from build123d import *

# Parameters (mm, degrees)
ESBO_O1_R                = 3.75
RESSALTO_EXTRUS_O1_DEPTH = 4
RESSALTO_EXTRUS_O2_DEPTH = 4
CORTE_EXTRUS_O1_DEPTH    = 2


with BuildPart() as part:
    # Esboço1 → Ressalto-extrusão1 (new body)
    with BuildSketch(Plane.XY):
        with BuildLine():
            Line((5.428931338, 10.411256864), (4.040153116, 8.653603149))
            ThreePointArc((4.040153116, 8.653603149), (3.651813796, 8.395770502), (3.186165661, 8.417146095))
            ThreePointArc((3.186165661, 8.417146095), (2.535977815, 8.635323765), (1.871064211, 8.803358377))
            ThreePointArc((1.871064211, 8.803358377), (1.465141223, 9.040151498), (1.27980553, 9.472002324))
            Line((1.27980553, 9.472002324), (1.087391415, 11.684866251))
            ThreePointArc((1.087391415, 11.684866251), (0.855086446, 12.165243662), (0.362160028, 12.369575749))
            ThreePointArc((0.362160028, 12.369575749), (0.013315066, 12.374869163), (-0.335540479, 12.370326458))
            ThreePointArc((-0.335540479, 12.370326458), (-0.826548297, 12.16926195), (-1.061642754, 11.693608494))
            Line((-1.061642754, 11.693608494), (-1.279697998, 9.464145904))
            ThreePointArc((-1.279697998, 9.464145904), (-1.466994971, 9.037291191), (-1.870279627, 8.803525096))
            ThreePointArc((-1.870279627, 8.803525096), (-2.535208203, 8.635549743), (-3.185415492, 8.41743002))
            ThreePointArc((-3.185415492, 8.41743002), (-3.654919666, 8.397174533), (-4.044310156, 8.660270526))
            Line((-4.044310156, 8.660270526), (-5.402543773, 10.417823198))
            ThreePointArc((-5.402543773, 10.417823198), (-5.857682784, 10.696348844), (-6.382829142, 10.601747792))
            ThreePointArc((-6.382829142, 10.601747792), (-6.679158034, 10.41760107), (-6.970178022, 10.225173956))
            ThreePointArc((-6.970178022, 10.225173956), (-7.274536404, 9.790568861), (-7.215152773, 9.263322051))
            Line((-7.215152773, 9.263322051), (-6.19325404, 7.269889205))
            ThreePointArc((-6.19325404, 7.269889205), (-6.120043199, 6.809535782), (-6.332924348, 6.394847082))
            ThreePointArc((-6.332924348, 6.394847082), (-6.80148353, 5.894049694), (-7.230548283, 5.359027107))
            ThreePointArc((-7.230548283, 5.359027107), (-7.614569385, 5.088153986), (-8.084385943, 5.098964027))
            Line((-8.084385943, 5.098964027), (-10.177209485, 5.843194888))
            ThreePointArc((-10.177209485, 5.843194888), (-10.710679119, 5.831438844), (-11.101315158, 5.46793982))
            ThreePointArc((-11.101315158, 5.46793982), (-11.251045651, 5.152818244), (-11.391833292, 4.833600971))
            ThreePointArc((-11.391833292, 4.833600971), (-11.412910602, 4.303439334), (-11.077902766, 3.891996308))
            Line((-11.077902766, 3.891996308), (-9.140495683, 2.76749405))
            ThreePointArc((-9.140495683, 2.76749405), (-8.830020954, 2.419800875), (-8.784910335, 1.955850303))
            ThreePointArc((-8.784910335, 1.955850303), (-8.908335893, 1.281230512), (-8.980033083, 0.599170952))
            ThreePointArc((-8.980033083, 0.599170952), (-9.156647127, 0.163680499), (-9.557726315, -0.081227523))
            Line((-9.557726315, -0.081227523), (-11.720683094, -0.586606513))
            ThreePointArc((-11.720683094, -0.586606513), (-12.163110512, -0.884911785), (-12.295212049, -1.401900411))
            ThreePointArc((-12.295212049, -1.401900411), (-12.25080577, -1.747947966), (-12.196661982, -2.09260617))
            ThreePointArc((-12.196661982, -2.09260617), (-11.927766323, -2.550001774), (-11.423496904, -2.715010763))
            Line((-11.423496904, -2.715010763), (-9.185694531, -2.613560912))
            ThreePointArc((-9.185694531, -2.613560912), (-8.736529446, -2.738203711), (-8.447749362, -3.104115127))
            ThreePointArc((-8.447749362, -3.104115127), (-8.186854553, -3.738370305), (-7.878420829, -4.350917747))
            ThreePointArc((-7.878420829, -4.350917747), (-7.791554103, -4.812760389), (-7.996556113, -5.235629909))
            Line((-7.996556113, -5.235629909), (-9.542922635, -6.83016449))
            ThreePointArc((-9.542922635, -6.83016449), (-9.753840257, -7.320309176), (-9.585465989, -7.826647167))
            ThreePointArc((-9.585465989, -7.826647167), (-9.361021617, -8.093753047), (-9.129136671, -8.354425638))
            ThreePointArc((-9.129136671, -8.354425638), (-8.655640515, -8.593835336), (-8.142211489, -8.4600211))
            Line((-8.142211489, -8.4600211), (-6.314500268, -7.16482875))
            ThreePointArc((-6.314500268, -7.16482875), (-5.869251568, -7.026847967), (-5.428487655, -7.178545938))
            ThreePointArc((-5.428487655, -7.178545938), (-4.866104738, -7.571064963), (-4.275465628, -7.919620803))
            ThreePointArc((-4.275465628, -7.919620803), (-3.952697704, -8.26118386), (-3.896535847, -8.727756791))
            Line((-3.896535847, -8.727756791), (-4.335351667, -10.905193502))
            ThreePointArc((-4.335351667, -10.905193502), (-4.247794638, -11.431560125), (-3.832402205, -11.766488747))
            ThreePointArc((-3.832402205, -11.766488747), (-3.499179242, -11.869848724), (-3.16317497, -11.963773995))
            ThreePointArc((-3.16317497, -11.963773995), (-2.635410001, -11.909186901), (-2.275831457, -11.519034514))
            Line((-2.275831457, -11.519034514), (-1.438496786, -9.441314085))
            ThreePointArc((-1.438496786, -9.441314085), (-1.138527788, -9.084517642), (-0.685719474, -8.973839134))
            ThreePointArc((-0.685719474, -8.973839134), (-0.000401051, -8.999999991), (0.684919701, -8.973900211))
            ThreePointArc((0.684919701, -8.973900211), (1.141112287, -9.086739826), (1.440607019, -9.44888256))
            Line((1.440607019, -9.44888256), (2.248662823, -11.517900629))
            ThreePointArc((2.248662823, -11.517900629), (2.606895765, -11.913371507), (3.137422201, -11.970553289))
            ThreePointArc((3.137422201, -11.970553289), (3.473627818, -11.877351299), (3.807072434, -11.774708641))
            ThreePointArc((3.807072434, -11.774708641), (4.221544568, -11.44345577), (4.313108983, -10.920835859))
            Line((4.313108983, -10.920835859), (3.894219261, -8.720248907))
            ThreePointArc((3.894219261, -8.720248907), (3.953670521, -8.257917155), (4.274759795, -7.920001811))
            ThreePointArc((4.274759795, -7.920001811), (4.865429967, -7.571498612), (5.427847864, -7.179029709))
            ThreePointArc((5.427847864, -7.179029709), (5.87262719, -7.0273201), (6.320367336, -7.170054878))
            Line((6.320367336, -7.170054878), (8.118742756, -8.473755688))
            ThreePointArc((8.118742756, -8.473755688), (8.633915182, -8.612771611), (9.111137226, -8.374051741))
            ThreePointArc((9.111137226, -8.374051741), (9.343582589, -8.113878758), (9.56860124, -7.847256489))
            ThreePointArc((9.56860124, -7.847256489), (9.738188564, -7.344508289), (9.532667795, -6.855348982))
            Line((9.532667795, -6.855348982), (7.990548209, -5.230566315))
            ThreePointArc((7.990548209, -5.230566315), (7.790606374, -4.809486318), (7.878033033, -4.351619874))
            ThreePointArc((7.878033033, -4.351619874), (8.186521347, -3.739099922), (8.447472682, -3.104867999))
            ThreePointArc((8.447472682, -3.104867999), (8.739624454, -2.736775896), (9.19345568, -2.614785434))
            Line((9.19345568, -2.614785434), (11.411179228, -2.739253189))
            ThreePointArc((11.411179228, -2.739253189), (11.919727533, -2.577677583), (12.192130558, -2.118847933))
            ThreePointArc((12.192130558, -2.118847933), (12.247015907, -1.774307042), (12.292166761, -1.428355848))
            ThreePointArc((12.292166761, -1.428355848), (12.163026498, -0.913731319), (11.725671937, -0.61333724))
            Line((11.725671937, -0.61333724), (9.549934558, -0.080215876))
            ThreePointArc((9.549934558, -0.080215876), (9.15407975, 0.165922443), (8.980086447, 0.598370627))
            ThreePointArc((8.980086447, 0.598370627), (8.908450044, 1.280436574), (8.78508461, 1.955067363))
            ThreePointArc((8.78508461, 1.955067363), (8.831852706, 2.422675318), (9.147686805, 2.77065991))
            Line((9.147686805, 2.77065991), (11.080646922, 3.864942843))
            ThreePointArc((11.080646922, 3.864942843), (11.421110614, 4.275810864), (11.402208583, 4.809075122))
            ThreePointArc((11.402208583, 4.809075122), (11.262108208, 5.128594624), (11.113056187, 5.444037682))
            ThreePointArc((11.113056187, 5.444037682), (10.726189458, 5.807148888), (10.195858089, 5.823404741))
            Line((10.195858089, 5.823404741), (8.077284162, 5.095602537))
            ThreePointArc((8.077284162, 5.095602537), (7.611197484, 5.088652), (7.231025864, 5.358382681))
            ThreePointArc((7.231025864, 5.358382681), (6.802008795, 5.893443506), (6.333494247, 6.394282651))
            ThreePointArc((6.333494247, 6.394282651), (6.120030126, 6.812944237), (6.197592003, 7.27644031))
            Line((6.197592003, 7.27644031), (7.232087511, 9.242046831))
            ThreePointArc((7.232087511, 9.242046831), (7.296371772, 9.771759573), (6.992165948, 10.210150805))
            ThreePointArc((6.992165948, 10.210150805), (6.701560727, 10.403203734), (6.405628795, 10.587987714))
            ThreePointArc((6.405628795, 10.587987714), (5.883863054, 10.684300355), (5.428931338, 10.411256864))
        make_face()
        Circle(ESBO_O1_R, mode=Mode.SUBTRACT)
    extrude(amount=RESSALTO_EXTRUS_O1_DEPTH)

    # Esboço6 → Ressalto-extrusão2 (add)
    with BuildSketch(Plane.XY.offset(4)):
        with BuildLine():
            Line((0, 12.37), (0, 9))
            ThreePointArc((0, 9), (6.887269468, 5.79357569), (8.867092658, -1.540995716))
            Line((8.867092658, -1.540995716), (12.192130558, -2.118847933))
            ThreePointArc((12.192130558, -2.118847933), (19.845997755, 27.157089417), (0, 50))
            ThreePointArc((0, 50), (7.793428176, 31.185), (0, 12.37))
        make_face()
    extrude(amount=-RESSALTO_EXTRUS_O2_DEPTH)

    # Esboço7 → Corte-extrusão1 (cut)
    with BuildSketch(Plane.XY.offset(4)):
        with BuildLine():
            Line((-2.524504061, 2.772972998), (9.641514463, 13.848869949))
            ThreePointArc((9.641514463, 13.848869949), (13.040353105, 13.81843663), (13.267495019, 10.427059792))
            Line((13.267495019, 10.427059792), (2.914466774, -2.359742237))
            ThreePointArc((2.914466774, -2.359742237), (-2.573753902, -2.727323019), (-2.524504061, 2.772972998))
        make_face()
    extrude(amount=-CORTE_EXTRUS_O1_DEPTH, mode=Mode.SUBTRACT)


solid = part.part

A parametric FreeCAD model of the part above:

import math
import FreeCAD as App
import Part
import Sketcher

doc = App.newDocument("Part")
body = doc.addObject("PartDesign::Body", "Body")

sketch1 = doc.addObject("Sketcher::SketchObject", "Sketch")
body.addObject(sketch1)
sketch1.AttachmentSupport = (doc.XY_Plane, [""])
sketch1.MapMode = "FlatFace"
sketch1.addGeometry([
    Part.LineSegment(App.Vector(5.428931, 10.411257, 0), App.Vector(4.040153, 8.653603, 0)),
    Part.ArcOfCircle(Part.Circle(App.Vector(3.451679, 9.118575, 0), App.Vector(0, 0, 1), 0.75), math.radians(-110.733297), math.radians(-38.313387)),
    Part.ArcOfCircle(Part.Circle(App.Vector(0, 0, 0), App.Vector(0, 0, 1), 9), math.radians(69.266703), math.radians(78.000918)),
    Part.ArcOfCircle(Part.Circle(App.Vector(2.026986, 9.536972, 0), App.Vector(0, 0, 1), 0.75), math.radians(-175.030486), math.radians(-101.999082)),
    Part.LineSegment(App.Vector(1.279806, 9.472002, 0), App.Vector(1.087391, 11.684866, 0)),
    Part.ArcOfCircle(Part.Circle(App.Vector(0.340211, 11.619897, 0), App.Vector(0, 0, 1), 0.75), math.radians(4.969514), math.radians(88.322957)),
    Part.ArcOfCircle(Part.Circle(App.Vector(0, 0, 0), App.Vector(0, 0, 1), 12.374876), math.radians(88.322957), math.radians(91.553746)),
    Part.ArcOfCircle(Part.Circle(App.Vector(-0.315204, 11.620602, 0), App.Vector(0, 0, 1), 0.75), math.radians(91.553746), math.radians(174.413885)),
    Part.LineSegment(App.Vector(-1.061643, 11.693608, 0), App.Vector(-1.279698, 9.464146, 0)),
    Part.ArcOfCircle(Part.Circle(App.Vector(-2.026136, 9.537152, 0), App.Vector(0, 0, 1), 0.75), math.radians(-78.006024), math.radians(-5.586115)),
    Part.ArcOfCircle(Part.Circle(App.Vector(0, 0, 0), App.Vector(0, 0, 1), 9), math.radians(101.993976), math.radians(110.72819)),
    Part.ArcOfCircle(Part.Circle(App.Vector(-3.450867, 9.118883, 0), App.Vector(0, 0, 1), 0.75), math.radians(-142.303214), math.radians(-69.27181)),
    Part.LineSegment(App.Vector(-4.04431, 8.660271, 0), App.Vector(-5.402544, 10.417823, 0)),
    Part.ArcOfCircle(Part.Circle(App.Vector(-5.995987, 9.959211, 0), App.Vector(0, 0, 1), 0.75), math.radians(37.696786), math.radians(121.050229)),
    Part.ArcOfCircle(Part.Circle(App.Vector(0, 0, 0), App.Vector(0, 0, 1), 12.374876), math.radians(121.050229), math.radians(124.281018)),
    Part.ArcOfCircle(Part.Circle(App.Vector(-6.547739, 9.60546, 0), App.Vector(0, 0, 1), 0.75), math.radians(124.281018), math.radians(207.141158)),
    Part.LineSegment(App.Vector(-7.215153, 9.263322, 0), App.Vector(-6.193254, 7.269889, 0)),
    Part.ArcOfCircle(Part.Circle(App.Vector(-6.860668, 6.927751, 0), App.Vector(0, 0, 1), 0.75), math.radians(-45.278751), math.radians(27.141158)),
    Part.ArcOfCircle(Part.Circle(App.Vector(0, 0, 0), App.Vector(0, 0, 1), 9), math.radians(134.721249), math.radians(143.455463)),
    Part.ArcOfCircle(Part.Circle(App.Vector(-7.833094, 5.805613, 0), App.Vector(0, 0, 1), 0.75), math.radians(-109.575941), math.radians(-36.544537)),
    Part.LineSegment(App.Vector(-8.084386, 5.098964, 0), App.Vector(-10.177209, 5.843195, 0)),
    Part.ArcOfCircle(Part.Circle(App.Vector(-10.428501, 5.136546, 0), App.Vector(0, 0, 1), 0.75), math.radians(70.424059), math.radians(153.777502)),
    Part.ArcOfCircle(Part.Circle(App.Vector(0.000001, 0, 0), App.Vector(0, 0, 1), 12.374877), math.radians(153.777502), math.radians(157.008291)),
    Part.ArcOfCircle(Part.Circle(App.Vector(-10.701412, 4.540653, 0), App.Vector(0, 0, 1), 0.75), math.radians(157.008291), math.radians(239.868431)),
    Part.LineSegment(App.Vector(-11.077903, 3.891996, 0), App.Vector(-9.140496, 2.767494, 0)),
    Part.ArcOfCircle(Part.Circle(App.Vector(-9.516986, 2.118838, 0), App.Vector(0, 0, 1), 0.75), math.radians(-12.551479), math.radians(59.86843)),
    Part.ArcOfCircle(Part.Circle(App.Vector(0, 0, 0), App.Vector(0, 0, 1), 9), math.radians(167.448521), math.radians(176.182736)),
    Part.ArcOfCircle(Part.Circle(App.Vector(-9.728369, 0.649102, 0), App.Vector(0, 0, 1), 0.75), math.radians(-76.848668), math.radians(-3.817264)),
    Part.LineSegment(App.Vector(-9.557726, -0.081228, 0), App.Vector(-11.720683, -0.586607, 0)),
    Part.ArcOfCircle(Part.Circle(App.Vector(-11.55004, -1.316936, 0), App.Vector(0, 0, 1), 0.75), math.radians(103.151332), math.radians(186.504775)),
    Part.ArcOfCircle(Part.Circle(App.Vector(-0.000002, 0, 0), App.Vector(0, 0, 1), 12.374875), math.radians(-173.495225), math.radians(-170.264436)),
    Part.ArcOfCircle(Part.Circle(App.Vector(-11.457463, -1.96578, 0), App.Vector(0, 0, 1), 0.75), math.radians(-170.264436), math.radians(-87.404297)),
    Part.LineSegment(App.Vector(-11.423497, -2.715011, 0), App.Vector(-9.185695, -2.613561, 0)),
    Part.ArcOfCircle(Part.Circle(App.Vector(-9.151728, -3.362791, 0), App.Vector(0, 0, 1), 0.75), math.radians(20.175794), math.radians(92.595703)),
    Part.ArcOfCircle(Part.Circle(App.Vector(0, 0, 0), App.Vector(0, 0, 1), 9), math.radians(-159.824206), math.radians(-151.089991)),
    Part.ArcOfCircle(Part.Circle(App.Vector(-8.534956, -4.713494, 0), App.Vector(0, 0, 1), 0.75), math.radians(-44.121395), math.radians(28.910009)),
    Part.LineSegment(App.Vector(-7.996556, -5.23563, 0), App.Vector(-9.542923, -6.830164, 0)),
    Part.ArcOfCircle(Part.Circle(App.Vector(-9.004523, -7.3523, 0), App.Vector(0, 0, 1), 0.75), math.radians(135.878605), math.radians(219.232047)),
    Part.ArcOfCircle(Part.Circle(App.Vector(0, 0, 0), App.Vector(0, 0, 1), 12.374876), math.radians(-140.767952), math.radians(-137.537163)),
    Part.ArcOfCircle(Part.Circle(App.Vector(-8.57585, -7.848092, 0), App.Vector(0, 0, 1), 0.75), math.radians(-137.537163), math.radians(-54.677024)),
    Part.LineSegment(App.Vector(-8.142211, -8.460021, 0), App.Vector(-6.3145, -7.164829, 0)),
    Part.ArcOfCircle(Part.Circle(App.Vector(-5.880862, -7.776758, 0), App.Vector(0, 0, 1), 0.75), math.radians(52.903067), math.radians(125.322976)),
    Part.ArcOfCircle(Part.Circle(App.Vector(0, 0, 0), App.Vector(0, 0, 1), 9), math.radians(-127.096933), math.radians(-118.362719)),
    Part.ArcOfCircle(Part.Circle(App.Vector(-4.631754, -8.579589, 0), App.Vector(0, 0, 1), 0.75), math.radians(-11.394123), math.radians(61.637281)),
    Part.LineSegment(App.Vector(-3.896536, -8.727757, 0), App.Vector(-4.335352, -10.905194, 0)),
    Part.ArcOfCircle(Part.Circle(App.Vector(-3.600133, -11.053361, 0), App.Vector(0, 0, 1), 0.75), math.radians(168.605877), math.radians(251.95932)),
    Part.ArcOfCircle(Part.Circle(App.Vector(0, 0, 0), App.Vector(0, 0, 1), 12.374876), math.radians(-108.04068), math.radians(-104.809891)),
    Part.ArcOfCircle(Part.Circle(App.Vector(-2.971465, -11.23869, 0), App.Vector(0, 0, 1), 0.75), math.radians(-104.809891), math.radians(-21.949751)),
    Part.LineSegment(App.Vector(-2.275831, -11.519035, 0), App.Vector(-1.438497, -9.441314, 0)),
    Part.ArcOfCircle(Part.Circle(App.Vector(-0.742863, -9.721659, 0), App.Vector(0, 0, 1), 0.75), math.radians(85.630339), math.radians(158.050249)),
    Part.ArcOfCircle(Part.Circle(App.Vector(0, 0, 0), App.Vector(0, 0, 1), 9), math.radians(-94.36966), math.radians(-85.635446)),
    Part.ArcOfCircle(Part.Circle(App.Vector(0.741996, -9.721725, 0), App.Vector(0, 0, 1), 0.75), math.radians(21.33315), math.radians(94.364554)),
    Part.LineSegment(App.Vector(1.440607, -9.448883, 0), App.Vector(2.248663, -11.517901, 0)),
    Part.ArcOfCircle(Part.Circle(App.Vector(2.947274, -11.245058, 0), App.Vector(0, 0, 1), 0.75), math.radians(-158.66685), math.radians(-75.313407)),
    Part.ArcOfCircle(Part.Circle(App.Vector(0, 0.000001, 0), App.Vector(0, 0, 1), 12.374877), math.radians(-75.313407), math.radians(-72.082618)),
    Part.ArcOfCircle(Part.Circle(App.Vector(3.576338, -11.061083, 0), App.Vector(0, 0, 1), 0.75), math.radians(-72.082618), math.radians(10.777521)),
    Part.LineSegment(App.Vector(4.313109, -10.920836, 0), App.Vector(3.894219, -8.720249, 0)),
    Part.ArcOfCircle(Part.Circle(App.Vector(4.63099, -8.580002, 0), App.Vector(0, 0, 1), 0.75), math.radians(118.357612), math.radians(190.777521)),
    Part.ArcOfCircle(Part.Circle(App.Vector(0, 0, 0), App.Vector(0, 0, 1), 9), math.radians(-61.642388), math.radians(-52.908173)),
    Part.ArcOfCircle(Part.Circle(App.Vector(5.880169, -7.777282, 0), App.Vector(0, 0, 1), 0.75), math.radians(54.060423), math.radians(127.091827)),
    Part.LineSegment(App.Vector(6.320367, -7.170055, 0), App.Vector(8.118743, -8.473756, 0)),
    Part.ArcOfCircle(Part.Circle(App.Vector(8.558942, -7.866528, 0), App.Vector(0, 0, 1), 0.75), math.radians(-125.939577), math.radians(-42.586134)),
    Part.ArcOfCircle(Part.Circle(App.Vector(0, 0, 0), App.Vector(0, 0, 1), 12.374877), math.radians(-42.586134), math.radians(-39.355345)),
    Part.ArcOfCircle(Part.Circle(App.Vector(8.98868, -7.37166, 0), App.Vector(0, 0, 1), 0.75), math.radians(-39.355345), math.radians(43.504794)),
    Part.LineSegment(App.Vector(9.532668, -6.855349, 0), App.Vector(7.990548, -5.230566, 0)),
    Part.ArcOfCircle(Part.Circle(App.Vector(8.534536, -4.714255, 0), App.Vector(0, 0, 1), 0.75), math.radians(151.084885), math.radians(223.504794)),
    Part.ArcOfCircle(Part.Circle(App.Vector(0, 0, 0), App.Vector(0, 0, 1), 9), math.radians(-28.915115), math.radians(-20.180901)),
    Part.ArcOfCircle(Part.Circle(App.Vector(9.151429, -3.363607, 0), App.Vector(0, 0, 1), 0.75), math.radians(86.787696), math.radians(159.8191)),
    Part.LineSegment(App.Vector(9.193456, -2.614785, 0), App.Vector(11.411179, -2.739253, 0)),
    Part.ArcOfCircle(Part.Circle(App.Vector(11.453206, -1.990432, 0), App.Vector(0, 0, 1), 0.75), math.radians(-93.212304), math.radians(-9.858862)),
    Part.ArcOfCircle(Part.Circle(App.Vector(0, 0, 0), App.Vector(0, 0, 1), 12.374877), math.radians(-9.858862), math.radians(-6.628073)),
    Part.ArcOfCircle(Part.Circle(App.Vector(11.54718, -1.341788, 0), App.Vector(0, 0, 1), 0.75), math.radians(-6.628073), math.radians(76.232067)),
    Part.LineSegment(App.Vector(11.725672, -0.613337, 0), App.Vector(9.549935, -0.080216, 0)),
    Part.ArcOfCircle(Part.Circle(App.Vector(9.728427, 0.648235, 0), App.Vector(0, 0, 1), 0.75), math.radians(-176.187842), math.radians(-103.767933)),
    Part.ArcOfCircle(Part.Circle(App.Vector(0, 0, 0), App.Vector(0, 0, 1), 9), math.radians(3.812158), math.radians(12.546372)),
    Part.ArcOfCircle(Part.Circle(App.Vector(9.517175, 2.11799, 0), App.Vector(0, 0, 1), 0.75), math.radians(119.514968), math.radians(192.546372)),
    Part.LineSegment(App.Vector(9.147687, 2.77066, 0), App.Vector(11.080647, 3.864943, 0)),
    Part.ArcOfCircle(Part.Circle(App.Vector(10.711159, 4.517613, 0), App.Vector(0, 0, 1), 0.75), math.radians(-60.485032), math.radians(22.868411)),
    Part.ArcOfCircle(Part.Circle(App.Vector(0.000001, 0, 0), App.Vector(0, 0, 1), 12.374876), math.radians(22.868411), math.radians(26.0992)),
    Part.ArcOfCircle(Part.Circle(App.Vector(10.439531, 5.114093, 0), App.Vector(0, 0, 1), 0.75), math.radians(26.0992), math.radians(108.95934)),
    Part.LineSegment(App.Vector(10.195858, 5.823405, 0), App.Vector(8.077284, 5.095603, 0)),
    Part.ArcOfCircle(Part.Circle(App.Vector(7.833611, 5.804915, 0), App.Vector(0, 0, 1), 0.75), math.radians(-143.460569), math.radians(-71.04066)),
    Part.ArcOfCircle(Part.Circle(App.Vector(0, 0, 0), App.Vector(0, 0, 1), 9), math.radians(36.53943), math.radians(45.273645)),
    Part.ArcOfCircle(Part.Circle(App.Vector(6.861285, 6.92714, 0), App.Vector(0, 0, 1), 0.75), math.radians(152.242241), math.radians(225.273645)),
    Part.LineSegment(App.Vector(6.197592, 7.27644, 0), App.Vector(7.232088, 9.242047, 0)),
    Part.ArcOfCircle(Part.Circle(App.Vector(6.568394, 9.591348, 0), App.Vector(0, 0, 1), 0.75), math.radians(-27.757759), math.radians(55.595684)),
    Part.ArcOfCircle(Part.Circle(App.Vector(0.000001, 0.000001, 0), App.Vector(0, 0, 1), 12.374875), math.radians(55.595684), math.radians(58.826473)),
    Part.ArcOfCircle(Part.Circle(App.Vector(6.017405, 9.946285, 0), App.Vector(0, 0, 1), 0.75), math.radians(58.826473), math.radians(141.686612)),
    Part.Circle(App.Vector(0, 0, 0), App.Vector(0, 0, 1), 3.75),
], False)
sketch1.addConstraint([
    Sketcher.Constraint("Tangent", 0, 2, 1, 2),
    Sketcher.Constraint("Tangent", 1, 1, 2, 1),
    Sketcher.Constraint("Tangent", 2, 2, 3, 2),
    Sketcher.Constraint("Tangent", 3, 1, 4, 1),
    Sketcher.Constraint("Tangent", 4, 2, 5, 1),
    Sketcher.Constraint("Tangent", 5, 2, 6, 1),
    Sketcher.Constraint("Tangent", 6, 2, 7, 1),
    Sketcher.Constraint("Tangent", 7, 2, 8, 1),
    Sketcher.Constraint("Tangent", 8, 2, 9, 2),
    Sketcher.Constraint("Tangent", 9, 1, 10, 1),
    Sketcher.Constraint("Tangent", 10, 2, 11, 2),
    Sketcher.Constraint("Tangent", 11, 1, 12, 1),
    Sketcher.Constraint("Tangent", 12, 2, 13, 1),
    Sketcher.Constraint("Tangent", 13, 2, 14, 1),
    Sketcher.Constraint("Tangent", 14, 2, 15, 1),
    Sketcher.Constraint("Tangent", 15, 2, 16, 1),
    Sketcher.Constraint("Tangent", 16, 2, 17, 2),
    Sketcher.Constraint("Tangent", 17, 1, 18, 1),
    Sketcher.Constraint("Tangent", 18, 2, 19, 2),
    Sketcher.Constraint("Tangent", 19, 1, 20, 1),
    Sketcher.Constraint("Tangent", 20, 2, 21, 1),
    Sketcher.Constraint("Tangent", 21, 2, 22, 1),
    Sketcher.Constraint("Tangent", 22, 2, 23, 1),
    Sketcher.Constraint("Tangent", 23, 2, 24, 1),
    Sketcher.Constraint("Tangent", 24, 2, 25, 2),
    Sketcher.Constraint("Tangent", 25, 1, 26, 1),
    Sketcher.Constraint("Tangent", 26, 2, 27, 2),
    Sketcher.Constraint("Tangent", 27, 1, 28, 1),
    Sketcher.Constraint("Tangent", 28, 2, 29, 1),
    Sketcher.Constraint("Tangent", 29, 2, 30, 1),
    Sketcher.Constraint("Tangent", 30, 2, 31, 1),
    Sketcher.Constraint("Tangent", 31, 2, 32, 1),
    Sketcher.Constraint("Tangent", 32, 2, 33, 2),
    Sketcher.Constraint("Tangent", 33, 1, 34, 1),
    Sketcher.Constraint("Tangent", 34, 2, 35, 2),
    Sketcher.Constraint("Tangent", 35, 1, 36, 1),
    Sketcher.Constraint("Tangent", 36, 2, 37, 1),
    Sketcher.Constraint("Tangent", 37, 2, 38, 1),
    Sketcher.Constraint("Tangent", 38, 2, 39, 1),
    Sketcher.Constraint("Tangent", 39, 2, 40, 1),
    Sketcher.Constraint("Tangent", 40, 2, 41, 2),
    Sketcher.Constraint("Tangent", 41, 1, 42, 1),
    Sketcher.Constraint("Tangent", 42, 2, 43, 2),
    Sketcher.Constraint("Tangent", 43, 1, 44, 1),
    Sketcher.Constraint("Tangent", 44, 2, 45, 1),
    Sketcher.Constraint("Tangent", 45, 2, 46, 1),
    Sketcher.Constraint("Tangent", 46, 2, 47, 1),
    Sketcher.Constraint("Tangent", 47, 2, 48, 1),
    Sketcher.Constraint("Tangent", 48, 2, 49, 2),
    Sketcher.Constraint("Tangent", 49, 1, 50, 1),
    Sketcher.Constraint("Tangent", 50, 2, 51, 2),
    Sketcher.Constraint("Tangent", 51, 1, 52, 1),
    Sketcher.Constraint("Tangent", 52, 2, 53, 1),
    Sketcher.Constraint("Tangent", 53, 2, 54, 1),
    Sketcher.Constraint("Tangent", 54, 2, 55, 1),
    Sketcher.Constraint("Tangent", 55, 2, 56, 1),
    Sketcher.Constraint("Tangent", 56, 2, 57, 2),
    Sketcher.Constraint("Tangent", 57, 1, 58, 1),
    Sketcher.Constraint("Tangent", 58, 2, 59, 2),
    Sketcher.Constraint("Tangent", 59, 1, 60, 1),
    Sketcher.Constraint("Tangent", 60, 2, 61, 1),
    Sketcher.Constraint("Tangent", 61, 2, 62, 1),
    Sketcher.Constraint("Tangent", 62, 2, 63, 1),
    Sketcher.Constraint("Tangent", 63, 2, 64, 1),
    Sketcher.Constraint("Tangent", 64, 2, 65, 2),
    Sketcher.Constraint("Tangent", 65, 1, 66, 1),
    Sketcher.Constraint("Tangent", 66, 2, 67, 2),
    Sketcher.Constraint("Tangent", 67, 1, 68, 1),
    Sketcher.Constraint("Tangent", 68, 2, 69, 1),
    Sketcher.Constraint("Tangent", 69, 2, 70, 1),
    Sketcher.Constraint("Tangent", 70, 2, 71, 1),
    Sketcher.Constraint("Tangent", 71, 2, 72, 1),
    Sketcher.Constraint("Tangent", 72, 2, 73, 2),
    Sketcher.Constraint("Tangent", 73, 1, 74, 1),
    Sketcher.Constraint("Tangent", 74, 2, 75, 2),
    Sketcher.Constraint("Tangent", 75, 1, 76, 1),
    Sketcher.Constraint("Tangent", 76, 2, 77, 1),
    Sketcher.Constraint("Tangent", 77, 2, 78, 1),
    Sketcher.Constraint("Tangent", 78, 2, 79, 1),
    Sketcher.Constraint("Tangent", 79, 2, 80, 1),
    Sketcher.Constraint("Tangent", 80, 2, 81, 2),
    Sketcher.Constraint("Tangent", 81, 1, 82, 1),
    Sketcher.Constraint("Tangent", 82, 2, 83, 2),
    Sketcher.Constraint("Tangent", 83, 1, 84, 1),
    Sketcher.Constraint("Tangent", 84, 2, 85, 1),
    Sketcher.Constraint("Tangent", 85, 2, 86, 1),
    Sketcher.Constraint("Tangent", 86, 2, 87, 1),
    Sketcher.Constraint("Tangent", 87, 2, 0, 1),
    Sketcher.Constraint("Coincident", 2, 3, -1, 1),
    Sketcher.Constraint("Coincident", 6, 3, -1, 1),
    Sketcher.Constraint("Coincident", 10, 3, -1, 1),
    Sketcher.Constraint("Coincident", 14, 3, -1, 1),
    Sketcher.Constraint("Coincident", 18, 3, -1, 1),
    Sketcher.Constraint("Coincident", 22, 3, -1, 1),
    Sketcher.Constraint("Coincident", 26, 3, -1, 1),
    Sketcher.Constraint("Coincident", 30, 3, -1, 1),
    Sketcher.Constraint("Coincident", 34, 3, -1, 1),
    Sketcher.Constraint("Coincident", 38, 3, -1, 1),
    Sketcher.Constraint("Coincident", 42, 3, -1, 1),
    Sketcher.Constraint("Coincident", 46, 3, -1, 1),
    Sketcher.Constraint("Coincident", 50, 3, -1, 1),
    Sketcher.Constraint("Coincident", 54, 3, -1, 1),
    Sketcher.Constraint("Coincident", 58, 3, -1, 1),
    Sketcher.Constraint("Coincident", 62, 3, -1, 1),
    Sketcher.Constraint("Coincident", 66, 3, -1, 1),
    Sketcher.Constraint("Coincident", 70, 3, -1, 1),
    Sketcher.Constraint("Coincident", 74, 3, -1, 1),
    Sketcher.Constraint("Coincident", 78, 3, -1, 1),
    Sketcher.Constraint("Coincident", 82, 3, -1, 1),
    Sketcher.Constraint("Coincident", 86, 3, -1, 1),
    Sketcher.Constraint("Coincident", 88, 3, -1, 1),
    Sketcher.Constraint("Equal", 1, 3),
    Sketcher.Constraint("Equal", 3, 5),
    Sketcher.Constraint("Equal", 5, 7),
    Sketcher.Constraint("Equal", 7, 9),
    Sketcher.Constraint("Equal", 2, 10),
    Sketcher.Constraint("Equal", 9, 11),
    Sketcher.Constraint("Equal", 11, 13),
    Sketcher.Constraint("Equal", 6, 14),
    Sketcher.Constraint("Equal", 13, 15),
    Sketcher.Constraint("Equal", 15, 17),
    Sketcher.Constraint("Equal", 10, 18),
    Sketcher.Constraint("Equal", 17, 19),
    Sketcher.Constraint("Equal", 19, 21),
    Sketcher.Constraint("Equal", 14, 22),
    Sketcher.Constraint("Equal", 21, 23),
    Sketcher.Constraint("Equal", 23, 25),
    Sketcher.Constraint("Equal", 18, 26),
    Sketcher.Constraint("Equal", 25, 27),
    Sketcher.Constraint("Equal", 27, 29),
    Sketcher.Constraint("Equal", 14, 30),
    Sketcher.Constraint("Equal", 29, 31),
    Sketcher.Constraint("Equal", 31, 33),
    Sketcher.Constraint("Equal", 26, 34),
    Sketcher.Constraint("Equal", 33, 35),
    Sketcher.Constraint("Equal", 35, 37),
    Sketcher.Constraint("Equal", 30, 38),
    Sketcher.Constraint("Equal", 37, 39),
    Sketcher.Constraint("Equal", 39, 41),
    Sketcher.Constraint("Equal", 34, 42),
    Sketcher.Constraint("Equal", 41, 43),
    Sketcher.Constraint("Equal", 43, 45),
    Sketcher.Constraint("Equal", 38, 46),
    Sketcher.Constraint("Equal", 45, 47),
    Sketcher.Constraint("Equal", 47, 49),
    Sketcher.Constraint("Equal", 42, 50),
    Sketcher.Constraint("Equal", 49, 51),
    Sketcher.Constraint("Equal", 51, 53),
    Sketcher.Constraint("Equal", 46, 54),
    Sketcher.Constraint("Equal", 53, 55),
    Sketcher.Constraint("Equal", 55, 57),
    Sketcher.Constraint("Equal", 50, 58),
    Sketcher.Constraint("Equal", 57, 59),
    Sketcher.Constraint("Equal", 59, 61),
    Sketcher.Constraint("Equal", 54, 62),
    Sketcher.Constraint("Equal", 61, 63),
    Sketcher.Constraint("Equal", 63, 65),
    Sketcher.Constraint("Equal", 58, 66),
    Sketcher.Constraint("Equal", 65, 67),
    Sketcher.Constraint("Equal", 67, 69),
    Sketcher.Constraint("Equal", 62, 70),
    Sketcher.Constraint("Equal", 69, 71),
    Sketcher.Constraint("Equal", 71, 73),
    Sketcher.Constraint("Equal", 66, 74),
    Sketcher.Constraint("Equal", 73, 75),
    Sketcher.Constraint("Equal", 75, 77),
    Sketcher.Constraint("Equal", 70, 78),
    Sketcher.Constraint("Equal", 77, 79),
    Sketcher.Constraint("Equal", 79, 81),
    Sketcher.Constraint("Equal", 74, 82),
    Sketcher.Constraint("Equal", 81, 83),
    Sketcher.Constraint("Equal", 83, 85),
    Sketcher.Constraint("Equal", 78, 86),
    Sketcher.Constraint("Equal", 85, 87),
    Sketcher.Constraint("Equal", 0, 8),
    Sketcher.Constraint("Equal", 4, 12),
    Sketcher.Constraint("Equal", 8, 16),
    Sketcher.Constraint("Equal", 12, 20),
    Sketcher.Constraint("Equal", 16, 24),
    Sketcher.Constraint("Equal", 20, 28),
    Sketcher.Constraint("Equal", 24, 32),
    Sketcher.Constraint("Equal", 28, 36),
    Sketcher.Constraint("Equal", 32, 40),
    Sketcher.Constraint("Equal", 36, 44),
    Sketcher.Constraint("Equal", 40, 48),
    Sketcher.Constraint("Equal", 44, 52),
    Sketcher.Constraint("Equal", 48, 56),
    Sketcher.Constraint("Equal", 52, 60),
    Sketcher.Constraint("Equal", 56, 64),
    Sketcher.Constraint("Equal", 60, 68),
    Sketcher.Constraint("Equal", 64, 72),
    Sketcher.Constraint("Equal", 68, 76),
    Sketcher.Constraint("Equal", 72, 80),
    Sketcher.Constraint("Equal", 76, 84),
    Sketcher.Constraint("Radius", 2, 9.0),
    Sketcher.Constraint("Diameter", 88, 7.5),
    Sketcher.Constraint("Radius", 1, 0.75),
    Sketcher.Constraint("DistanceY", 57, 3, -1, 1, 8.580002),
    Sketcher.Constraint("Radius", 6, 12.374876),
    Sketcher.Constraint("Distance", 0, 2.240101),
    Sketcher.Constraint("DistanceX", 21, 3, -1, 1, 10.428501),
    Sketcher.Constraint("DistanceY", -1, 1, 27, 3, 0.649102),
    Sketcher.Constraint("DistanceY", 37, 3, -1, 1, 7.3523),
    Sketcher.Constraint("DistanceY", -1, 1, 22, 2, 4.833601),
    Sketcher.Constraint("DistanceY", 29, 2, -1, 1, 1.4019),
    Sketcher.Constraint("DistanceX", 40, 2, -1, 1, 6.3145),
    Sketcher.Constraint("DistanceY", 50, 2, -1, 1, 8.9739),
    Sketcher.Constraint("DistanceX", -1, 1, 62, 2, 9.568601),
    Sketcher.Constraint("DistanceX", -1, 1, 1, 3, 3.451679),
    Sketcher.Constraint("DistanceY", -1, 1, 3, 3, 9.536972),
    Sketcher.Constraint("DistanceY", -1, 1, 13, 3, 9.959211),
    Sketcher.Constraint("DistanceX", 15, 3, -1, 1, 6.547739),
    Sketcher.Constraint("DistanceY", 31, 3, -1, 1, 1.96578),
    Sketcher.Constraint("DistanceY", 43, 3, -1, 1, 8.579589),
    Sketcher.Constraint("DistanceY", 47, 3, -1, 1, 11.23869),
    Sketcher.Constraint("DistanceX", -1, 1, 59, 3, 5.880169),
    Sketcher.Constraint("DistanceX", -1, 1, 67, 3, 9.151429),
    Sketcher.Constraint("DistanceX", -1, 1, 71, 3, 11.54718),
    Sketcher.Constraint("DistanceY", -1, 1, 75, 3, 2.11799),
    Sketcher.Constraint("DistanceX", -1, 1, 79, 3, 10.439531),
    Sketcher.Constraint("DistanceY", -1, 1, 83, 3, 6.92714),
    Sketcher.Constraint("DistanceX", 6, 2, -1, 1, 0.33554),
])
pad1 = doc.addObject("PartDesign::Pad", "Pad")
body.addObject(pad1)
pad1.Profile = sketch1
pad1.Length = 4

sketch2 = doc.addObject("Sketcher::SketchObject", "Sketch001")
body.addObject(sketch2)
sketch2.AttachmentSupport = (doc.XY_Plane, [""])
sketch2.MapMode = "FlatFace"
sketch2.AttachmentOffset = App.Placement(App.Vector(0, 0, 4), App.Rotation())
sketch2.addGeometry([
    Part.LineSegment(App.Vector(0, 12.37, 0), App.Vector(0, 9, 0)),
    Part.ArcOfCircle(Part.Circle(App.Vector(0, 0, 0), App.Vector(0, 0, 1), 9), math.radians(-9.858862), math.radians(90)),
    Part.LineSegment(App.Vector(8.867093, -1.540996, 0), App.Vector(12.192131, -2.118848, 0)),
    Part.ArcOfCircle(Part.Circle(App.Vector(-11.723402, 19.772079, 0), App.Vector(0, 0, 1), 32.42168), math.radians(-42.469224), math.radians(68.802037)),
    Part.ArcOfCircle(Part.Circle(App.Vector(-18.815, 31.185, 0), App.Vector(0, 0, 1), 26.608428), math.radians(-45), math.radians(45)),
], False)
sketch2.addConstraint([
    Sketcher.Constraint("Coincident", 0, 2, 1, 2),
    Sketcher.Constraint("Coincident", 1, 1, 2, 1),
    Sketcher.Constraint("Coincident", 2, 2, 3, 1),
    Sketcher.Constraint("Coincident", 3, 2, 4, 2),
    Sketcher.Constraint("Coincident", 4, 1, 0, 1),
    Sketcher.Constraint("Vertical", 0),
    Sketcher.Constraint("Coincident", 1, 3, -1, 1),
    Sketcher.Constraint("PointOnObject", 0, 2, -2),
    Sketcher.Constraint("PointOnObject", 3, 2, -2),
    Sketcher.Constraint("Radius", 1, 9.0),
    Sketcher.Constraint("DistanceY", -1, 1, 3, 2, 50.0),
    Sketcher.Constraint("DistanceY", 0, 2, 0, 1, 3.37),
    Sketcher.Constraint("Radius", 3, 32.42168),
    Sketcher.Constraint("Radius", 4, 26.608428),
    Sketcher.Constraint("DistanceX", 3, 3, -1, 1, 11.723402),
    Sketcher.Constraint("DistanceX", -1, 1, 2, 2, 12.192131),
    Sketcher.Constraint("DistanceX", -1, 1, 1, 1, 8.867093),
])
pad2 = doc.addObject("PartDesign::Pad", "Pad001")
body.addObject(pad2)
pad2.Profile = sketch2
pad2.Length = 4
pad2.Reversed = True

sketch3 = doc.addObject("Sketcher::SketchObject", "Sketch002")
body.addObject(sketch3)
sketch3.AttachmentSupport = (doc.XY_Plane, [""])
sketch3.MapMode = "FlatFace"
sketch3.AttachmentOffset = App.Placement(App.Vector(0, 0, 4), App.Rotation())
sketch3.addGeometry([
    Part.LineSegment(App.Vector(9.641514, 13.84887, 0), App.Vector(-2.524504, 2.772973, 0)),
    Part.ArcOfCircle(Part.Circle(App.Vector(0, 0, 0), App.Vector(0, 0, 1), 3.75), math.radians(132.314609), math.radians(321.004113)),
    Part.LineSegment(App.Vector(2.914467, -2.359742, 0), App.Vector(13.267495, 10.42706, 0)),
    Part.ArcOfCircle(Part.Circle(App.Vector(11.324517, 12.000221, 0), App.Vector(0, 0, 1), 2.5), math.radians(-38.995887), math.radians(132.314609)),
], False)
sketch3.addConstraint([
    Sketcher.Constraint("Tangent", 0, 2, 1, 1),
    Sketcher.Constraint("Tangent", 1, 2, 2, 1),
    Sketcher.Constraint("Tangent", 2, 2, 3, 1),
    Sketcher.Constraint("Tangent", 3, 2, 0, 1),
    Sketcher.Constraint("Coincident", 1, 3, -1, 1),
    Sketcher.Constraint("Radius", 3, 2.5),
    Sketcher.Constraint("Radius", 1, 3.75),
    Sketcher.Constraint("DistanceX", 0, 2, 2, 2, 15.791999),
    Sketcher.Constraint("DistanceY", -1, 1, 3, 3, 12.000221),
])
pocket1 = doc.addObject("PartDesign::Pocket", "Pocket")
body.addObject(pocket1)
pocket1.Profile = sketch3
pocket1.Length = 2

doc.recompute()
